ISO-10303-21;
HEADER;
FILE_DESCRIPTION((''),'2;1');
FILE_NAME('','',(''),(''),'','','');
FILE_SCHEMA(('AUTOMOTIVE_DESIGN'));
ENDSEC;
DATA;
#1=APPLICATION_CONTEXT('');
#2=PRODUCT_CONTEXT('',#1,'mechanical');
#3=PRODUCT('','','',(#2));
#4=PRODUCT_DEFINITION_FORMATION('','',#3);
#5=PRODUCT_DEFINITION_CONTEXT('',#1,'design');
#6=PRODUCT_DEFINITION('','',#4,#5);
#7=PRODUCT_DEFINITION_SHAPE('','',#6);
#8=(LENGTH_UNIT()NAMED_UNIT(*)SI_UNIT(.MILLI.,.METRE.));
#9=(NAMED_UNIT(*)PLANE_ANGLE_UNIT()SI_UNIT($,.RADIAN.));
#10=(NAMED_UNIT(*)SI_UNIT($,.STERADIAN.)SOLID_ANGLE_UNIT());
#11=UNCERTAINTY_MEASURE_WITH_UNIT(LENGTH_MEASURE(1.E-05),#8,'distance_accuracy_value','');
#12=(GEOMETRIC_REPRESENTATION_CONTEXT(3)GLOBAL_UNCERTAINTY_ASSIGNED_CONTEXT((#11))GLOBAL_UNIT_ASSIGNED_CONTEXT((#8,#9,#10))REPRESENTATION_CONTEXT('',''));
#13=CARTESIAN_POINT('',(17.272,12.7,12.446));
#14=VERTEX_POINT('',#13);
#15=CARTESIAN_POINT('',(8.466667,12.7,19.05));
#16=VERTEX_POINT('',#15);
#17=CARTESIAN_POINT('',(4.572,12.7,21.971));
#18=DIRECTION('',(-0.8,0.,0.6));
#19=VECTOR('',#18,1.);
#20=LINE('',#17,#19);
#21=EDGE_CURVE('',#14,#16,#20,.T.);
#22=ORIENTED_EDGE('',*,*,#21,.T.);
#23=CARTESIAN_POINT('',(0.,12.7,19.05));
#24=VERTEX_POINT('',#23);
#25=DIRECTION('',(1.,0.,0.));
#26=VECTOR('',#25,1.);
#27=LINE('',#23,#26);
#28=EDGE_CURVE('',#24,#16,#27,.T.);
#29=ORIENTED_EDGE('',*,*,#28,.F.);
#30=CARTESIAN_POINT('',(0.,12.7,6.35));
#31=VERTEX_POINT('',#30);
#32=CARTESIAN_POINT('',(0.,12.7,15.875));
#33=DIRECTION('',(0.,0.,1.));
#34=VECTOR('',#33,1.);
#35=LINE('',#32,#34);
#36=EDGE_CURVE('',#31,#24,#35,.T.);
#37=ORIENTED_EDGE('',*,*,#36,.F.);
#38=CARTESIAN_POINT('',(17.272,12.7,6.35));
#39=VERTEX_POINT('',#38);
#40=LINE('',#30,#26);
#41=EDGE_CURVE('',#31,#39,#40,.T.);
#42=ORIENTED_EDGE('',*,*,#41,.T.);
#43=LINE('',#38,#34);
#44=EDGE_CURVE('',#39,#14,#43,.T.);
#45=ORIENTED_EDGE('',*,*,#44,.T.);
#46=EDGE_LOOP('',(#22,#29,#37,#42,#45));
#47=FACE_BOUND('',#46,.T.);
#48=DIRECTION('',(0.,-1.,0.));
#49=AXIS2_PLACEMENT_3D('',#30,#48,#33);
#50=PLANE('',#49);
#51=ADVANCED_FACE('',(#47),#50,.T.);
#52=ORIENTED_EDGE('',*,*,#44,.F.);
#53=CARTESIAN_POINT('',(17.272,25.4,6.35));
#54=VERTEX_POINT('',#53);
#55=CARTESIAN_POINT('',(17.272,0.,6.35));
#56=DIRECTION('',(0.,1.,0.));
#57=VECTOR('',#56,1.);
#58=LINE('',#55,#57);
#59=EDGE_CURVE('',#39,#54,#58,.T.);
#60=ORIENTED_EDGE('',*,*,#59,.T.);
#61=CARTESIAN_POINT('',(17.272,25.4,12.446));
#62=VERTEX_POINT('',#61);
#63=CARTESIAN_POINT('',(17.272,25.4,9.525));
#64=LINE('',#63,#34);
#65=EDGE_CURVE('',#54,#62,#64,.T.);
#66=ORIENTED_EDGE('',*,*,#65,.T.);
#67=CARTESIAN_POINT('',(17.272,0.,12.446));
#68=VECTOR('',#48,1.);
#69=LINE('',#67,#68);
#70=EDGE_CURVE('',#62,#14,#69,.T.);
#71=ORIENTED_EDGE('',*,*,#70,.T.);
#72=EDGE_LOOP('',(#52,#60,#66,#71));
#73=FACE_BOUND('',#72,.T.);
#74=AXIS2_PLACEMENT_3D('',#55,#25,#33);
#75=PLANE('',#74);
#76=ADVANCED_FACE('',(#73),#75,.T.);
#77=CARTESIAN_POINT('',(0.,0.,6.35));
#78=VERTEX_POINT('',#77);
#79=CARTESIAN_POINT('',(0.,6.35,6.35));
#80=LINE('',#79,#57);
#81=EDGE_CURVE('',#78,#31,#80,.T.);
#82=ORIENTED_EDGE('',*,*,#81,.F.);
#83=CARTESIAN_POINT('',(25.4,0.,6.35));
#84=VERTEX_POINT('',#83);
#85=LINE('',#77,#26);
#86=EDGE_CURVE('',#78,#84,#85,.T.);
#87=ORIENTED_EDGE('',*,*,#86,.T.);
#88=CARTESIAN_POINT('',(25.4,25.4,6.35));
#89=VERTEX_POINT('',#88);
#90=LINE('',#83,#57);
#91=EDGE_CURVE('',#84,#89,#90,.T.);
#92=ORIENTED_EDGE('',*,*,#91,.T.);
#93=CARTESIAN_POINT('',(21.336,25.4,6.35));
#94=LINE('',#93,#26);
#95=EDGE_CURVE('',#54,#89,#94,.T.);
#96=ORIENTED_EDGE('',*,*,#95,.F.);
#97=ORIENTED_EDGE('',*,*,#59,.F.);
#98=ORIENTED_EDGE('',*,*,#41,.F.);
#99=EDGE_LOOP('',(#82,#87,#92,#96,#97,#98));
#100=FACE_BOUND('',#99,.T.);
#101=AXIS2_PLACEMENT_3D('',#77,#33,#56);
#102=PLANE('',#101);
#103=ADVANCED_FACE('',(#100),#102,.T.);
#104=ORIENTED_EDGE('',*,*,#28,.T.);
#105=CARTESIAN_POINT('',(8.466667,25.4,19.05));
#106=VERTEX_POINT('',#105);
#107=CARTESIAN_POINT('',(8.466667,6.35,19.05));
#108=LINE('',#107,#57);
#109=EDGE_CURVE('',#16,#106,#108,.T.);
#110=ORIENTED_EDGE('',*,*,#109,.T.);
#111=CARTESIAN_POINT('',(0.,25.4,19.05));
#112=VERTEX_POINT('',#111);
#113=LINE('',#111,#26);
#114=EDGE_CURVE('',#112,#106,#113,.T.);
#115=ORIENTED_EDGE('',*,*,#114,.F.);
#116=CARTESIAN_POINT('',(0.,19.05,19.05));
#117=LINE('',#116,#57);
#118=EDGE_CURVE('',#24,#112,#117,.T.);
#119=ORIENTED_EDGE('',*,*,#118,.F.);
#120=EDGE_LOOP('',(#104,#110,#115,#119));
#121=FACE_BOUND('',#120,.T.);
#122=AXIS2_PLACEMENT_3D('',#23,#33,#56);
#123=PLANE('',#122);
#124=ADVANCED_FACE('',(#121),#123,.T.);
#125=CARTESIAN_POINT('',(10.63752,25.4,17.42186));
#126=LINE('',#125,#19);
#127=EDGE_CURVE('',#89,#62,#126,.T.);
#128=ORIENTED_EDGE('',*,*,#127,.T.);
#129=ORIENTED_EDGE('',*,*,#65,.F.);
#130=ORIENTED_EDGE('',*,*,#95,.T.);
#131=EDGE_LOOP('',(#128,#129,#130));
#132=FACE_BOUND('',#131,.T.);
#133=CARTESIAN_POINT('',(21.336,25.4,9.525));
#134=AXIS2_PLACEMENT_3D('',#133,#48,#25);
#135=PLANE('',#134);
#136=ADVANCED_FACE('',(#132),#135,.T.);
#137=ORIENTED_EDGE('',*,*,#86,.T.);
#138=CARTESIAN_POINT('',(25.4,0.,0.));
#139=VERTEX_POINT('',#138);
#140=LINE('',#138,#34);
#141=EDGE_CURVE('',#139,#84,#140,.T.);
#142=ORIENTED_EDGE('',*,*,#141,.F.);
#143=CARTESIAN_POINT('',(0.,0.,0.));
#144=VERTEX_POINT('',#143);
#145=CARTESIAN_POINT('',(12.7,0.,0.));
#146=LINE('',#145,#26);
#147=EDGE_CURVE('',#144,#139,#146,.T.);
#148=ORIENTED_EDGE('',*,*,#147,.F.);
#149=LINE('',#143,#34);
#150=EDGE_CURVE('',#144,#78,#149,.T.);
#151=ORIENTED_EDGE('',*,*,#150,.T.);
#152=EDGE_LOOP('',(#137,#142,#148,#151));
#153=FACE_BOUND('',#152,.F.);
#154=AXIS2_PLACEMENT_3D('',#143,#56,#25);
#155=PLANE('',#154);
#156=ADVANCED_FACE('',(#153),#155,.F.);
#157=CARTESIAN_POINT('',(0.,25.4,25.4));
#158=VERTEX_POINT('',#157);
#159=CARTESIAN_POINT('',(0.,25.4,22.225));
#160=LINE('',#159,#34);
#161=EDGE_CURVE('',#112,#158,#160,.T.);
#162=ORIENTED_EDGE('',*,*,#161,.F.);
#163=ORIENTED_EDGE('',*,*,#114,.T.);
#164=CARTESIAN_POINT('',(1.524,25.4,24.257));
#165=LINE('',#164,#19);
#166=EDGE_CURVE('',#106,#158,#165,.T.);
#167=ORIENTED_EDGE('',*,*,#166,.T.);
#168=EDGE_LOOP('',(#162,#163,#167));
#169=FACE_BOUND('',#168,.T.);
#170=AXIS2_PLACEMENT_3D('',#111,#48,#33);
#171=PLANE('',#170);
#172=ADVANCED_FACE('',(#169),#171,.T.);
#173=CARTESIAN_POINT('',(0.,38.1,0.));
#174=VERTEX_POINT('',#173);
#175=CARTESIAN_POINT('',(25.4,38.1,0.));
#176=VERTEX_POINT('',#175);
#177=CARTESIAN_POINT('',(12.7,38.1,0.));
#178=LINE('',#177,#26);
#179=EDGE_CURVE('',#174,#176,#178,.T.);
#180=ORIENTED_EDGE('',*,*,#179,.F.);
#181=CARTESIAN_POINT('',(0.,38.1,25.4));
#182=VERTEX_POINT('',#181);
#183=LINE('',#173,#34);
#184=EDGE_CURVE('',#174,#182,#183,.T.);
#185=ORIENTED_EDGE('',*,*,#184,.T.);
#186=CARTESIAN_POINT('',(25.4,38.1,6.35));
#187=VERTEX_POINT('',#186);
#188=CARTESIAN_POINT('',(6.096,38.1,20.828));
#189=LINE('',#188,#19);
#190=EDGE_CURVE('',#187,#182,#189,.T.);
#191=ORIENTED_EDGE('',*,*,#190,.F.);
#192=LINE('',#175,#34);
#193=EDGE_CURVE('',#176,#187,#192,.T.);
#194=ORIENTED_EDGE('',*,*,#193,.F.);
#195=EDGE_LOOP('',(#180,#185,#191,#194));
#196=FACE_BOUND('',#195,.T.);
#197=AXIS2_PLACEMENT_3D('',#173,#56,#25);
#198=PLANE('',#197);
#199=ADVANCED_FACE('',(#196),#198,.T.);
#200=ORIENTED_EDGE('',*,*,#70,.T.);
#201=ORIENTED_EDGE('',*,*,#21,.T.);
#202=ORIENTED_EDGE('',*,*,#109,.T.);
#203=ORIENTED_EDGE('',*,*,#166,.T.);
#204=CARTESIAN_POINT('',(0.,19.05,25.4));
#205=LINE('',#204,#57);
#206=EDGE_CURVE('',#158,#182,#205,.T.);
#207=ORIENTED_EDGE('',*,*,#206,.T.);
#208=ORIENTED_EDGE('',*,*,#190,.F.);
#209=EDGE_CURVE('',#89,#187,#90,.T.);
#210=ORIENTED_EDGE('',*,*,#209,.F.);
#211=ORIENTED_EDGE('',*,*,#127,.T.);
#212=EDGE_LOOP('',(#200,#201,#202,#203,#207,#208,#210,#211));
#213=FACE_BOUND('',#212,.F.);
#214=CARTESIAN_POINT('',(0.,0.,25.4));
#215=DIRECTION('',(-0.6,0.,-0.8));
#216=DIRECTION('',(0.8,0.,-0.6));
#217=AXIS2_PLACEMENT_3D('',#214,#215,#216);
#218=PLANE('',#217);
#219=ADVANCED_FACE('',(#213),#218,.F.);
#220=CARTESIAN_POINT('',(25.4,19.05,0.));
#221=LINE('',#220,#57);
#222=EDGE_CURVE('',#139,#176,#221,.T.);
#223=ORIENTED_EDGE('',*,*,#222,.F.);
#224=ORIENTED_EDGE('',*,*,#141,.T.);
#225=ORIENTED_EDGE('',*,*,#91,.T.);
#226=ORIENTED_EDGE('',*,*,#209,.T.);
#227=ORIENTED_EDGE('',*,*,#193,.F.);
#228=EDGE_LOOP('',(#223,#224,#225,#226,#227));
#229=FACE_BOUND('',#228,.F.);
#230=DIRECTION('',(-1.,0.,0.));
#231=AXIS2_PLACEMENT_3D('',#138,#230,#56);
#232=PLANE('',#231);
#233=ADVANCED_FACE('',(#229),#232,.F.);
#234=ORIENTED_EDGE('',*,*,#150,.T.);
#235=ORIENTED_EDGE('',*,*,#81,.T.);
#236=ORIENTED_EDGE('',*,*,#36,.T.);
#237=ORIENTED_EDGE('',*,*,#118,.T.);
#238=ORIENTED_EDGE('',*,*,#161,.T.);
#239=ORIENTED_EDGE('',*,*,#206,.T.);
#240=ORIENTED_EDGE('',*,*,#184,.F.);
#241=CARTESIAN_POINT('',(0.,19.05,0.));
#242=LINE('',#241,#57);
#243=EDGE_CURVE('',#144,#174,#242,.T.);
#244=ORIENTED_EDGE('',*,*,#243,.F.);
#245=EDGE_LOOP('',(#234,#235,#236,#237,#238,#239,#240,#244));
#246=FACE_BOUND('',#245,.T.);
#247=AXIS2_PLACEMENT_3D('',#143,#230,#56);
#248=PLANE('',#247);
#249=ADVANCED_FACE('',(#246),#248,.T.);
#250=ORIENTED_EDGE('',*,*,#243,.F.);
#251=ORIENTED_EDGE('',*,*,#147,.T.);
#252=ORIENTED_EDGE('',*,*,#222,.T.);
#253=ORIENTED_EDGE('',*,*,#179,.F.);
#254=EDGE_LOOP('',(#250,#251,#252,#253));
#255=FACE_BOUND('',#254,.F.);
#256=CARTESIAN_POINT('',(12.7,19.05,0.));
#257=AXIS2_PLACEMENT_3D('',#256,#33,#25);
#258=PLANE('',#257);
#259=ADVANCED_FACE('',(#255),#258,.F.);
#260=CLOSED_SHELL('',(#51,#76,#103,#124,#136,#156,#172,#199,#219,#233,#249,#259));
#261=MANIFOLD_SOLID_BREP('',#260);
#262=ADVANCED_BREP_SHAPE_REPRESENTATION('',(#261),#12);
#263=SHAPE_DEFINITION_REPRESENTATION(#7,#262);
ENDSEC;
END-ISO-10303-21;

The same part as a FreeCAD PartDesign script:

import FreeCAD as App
import Part
import Sketcher

V = App.Vector
Q = App.Units.Quantity

doc = App.newDocument("Part")
body = doc.addObject("PartDesign::Body", "Body")

sketch1 = body.newObject("Sketcher::SketchObject", "Sketch")
sketch1.AttachmentSupport = (doc.getObject("XY_Plane"), [""])
sketch1.MapMode = "FlatFace"
sketch1.addGeometry(Part.LineSegment(V(0, 38.1, 0), V(0, 0, 0)), False)
sketch1.addGeometry(Part.LineSegment(V(0, 0, 0), V(25.4, 0, 0)), False)
sketch1.addGeometry(Part.LineSegment(V(25.4, 0, 0), V(25.4, 38.1, 0)), False)
sketch1.addGeometry(Part.LineSegment(V(25.4, 38.1, 0), V(0, 38.1, 0)), False)
sketch1.addConstraint(Sketcher.Constraint("Coincident", 0, 2, 1, 1))
sketch1.addConstraint(Sketcher.Constraint("Coincident", 1, 2, 2, 1))
sketch1.addConstraint(Sketcher.Constraint("Coincident", 2, 2, 3, 1))
sketch1.addConstraint(Sketcher.Constraint("Coincident", 3, 2, 0, 1))
sketch1.addConstraint(Sketcher.Constraint("Vertical", 0))
sketch1.addConstraint(Sketcher.Constraint("Horizontal", 1))
sketch1.addConstraint(Sketcher.Constraint("Vertical", 2))
sketch1.addConstraint(Sketcher.Constraint("Horizontal", 3))
sketch1.addConstraint(Sketcher.Constraint("Coincident", 0, 2, -1, 1))
sketch1.addConstraint(Sketcher.Constraint("DistanceX", 1, 1, 1, 2, Q("1 in")))
sketch1.addConstraint(Sketcher.Constraint("DistanceY", 0, 2, 0, 1, Q("1.5 in")))
pad1 = body.newObject("PartDesign::Pad", "Pad")
pad1.Profile = sketch1
pad1.Length = Q("1 in")

sketch2 = body.newObject("Sketcher::SketchObject", "Sketch001")
sketch2.AttachmentSupport = (doc.getObject("XZ_Plane"), [""])
sketch2.MapMode = "FlatFace"
sketch2.addGeometry(Part.LineSegment(V(25.4, 25.4, 0), V(0, 25.4, 0)), False)
sketch2.addGeometry(Part.LineSegment(V(0, 25.4, 0), V(25.4, 6.35, 0)), False)
sketch2.addGeometry(Part.LineSegment(V(25.4, 6.35, 0), V(25.4, 25.4, 0)), False)
sketch2.addConstraint(Sketcher.Constraint("Coincident", 0, 2, 1, 1))
sketch2.addConstraint(Sketcher.Constraint("Coincident", 1, 2, 2, 1))
sketch2.addConstraint(Sketcher.Constraint("Coincident", 2, 2, 0, 1))
sketch2.addConstraint(Sketcher.Constraint("Horizontal", 0))
sketch2.addConstraint(Sketcher.Constraint("Vertical", 2))
sketch2.addConstraint(Sketcher.Constraint("PointOnObject", 0, 2, -2))
sketch2.addConstraint(Sketcher.Constraint("DistanceX", 0, 2, 0, 1, Q("1 in")))
sketch2.addConstraint(Sketcher.Constraint("DistanceY", -1, 1, 0, 2, Q("1 in")))
sketch2.addConstraint(Sketcher.Constraint("DistanceY", 2, 1, 2, 2, Q("0.75 in")))
pocket1 = body.newObject("PartDesign::Pocket", "Pocket")
pocket1.Profile = sketch2
pocket1.Length = Q("2 in")

sketch3 = body.newObject("Sketcher::SketchObject", "Sketch002")
sketch3.AttachmentSupport = (doc.getObject("YZ_Plane"), [""])
sketch3.MapMode = "FlatFace"
sketch3.addGeometry(Part.LineSegment(V(0, 25.4, 0), V(0, 6.35, 0)), False)
sketch3.addGeometry(Part.LineSegment(V(0, 6.35, 0), V(12.7, 6.35, 0)), False)
sketch3.addGeometry(Part.LineSegment(V(12.7, 6.35, 0), V(12.7, 25.4, 0)), False)
sketch3.addGeometry(Part.LineSegment(V(12.7, 25.4, 0), V(0, 25.4, 0)), False)
sketch3.addConstraint(Sketcher.Constraint("Coincident", 0, 2, 1, 1))
sketch3.addConstraint(Sketcher.Constraint("Coincident", 1, 2, 2, 1))
sketch3.addConstraint(Sketcher.Constraint("Coincident", 2, 2, 3, 1))
sketch3.addConstraint(Sketcher.Constraint("Coincident", 3, 2, 0, 1))
sketch3.addConstraint(Sketcher.Constraint("Vertical", 0))
sketch3.addConstraint(Sketcher.Constraint("Horizontal", 1))
sketch3.addConstraint(Sketcher.Constraint("Vertical", 2))
sketch3.addConstraint(Sketcher.Constraint("Horizontal", 3))
sketch3.addConstraint(Sketcher.Constraint("PointOnObject", 0, 2, -2))
sketch3.addConstraint(Sketcher.Constraint("DistanceX", 1, 1, 1, 2, Q("0.5 in")))
sketch3.addConstraint(Sketcher.Constraint("DistanceY", -1, 1, 2, 2, Q("1 in")))
sketch3.addConstraint(Sketcher.Constraint("DistanceY", 0, 2, 0, 1, Q("0.75 in")))
pocket2 = body.newObject("PartDesign::Pocket", "Pocket001")
pocket2.Profile = sketch3
pocket2.Length = Q("2 in")
pocket2.Reversed = True

sketch4 = body.newObject("Sketcher::SketchObject", "Sketch003")
sketch4.AttachmentSupport = (doc.getObject("YZ_Plane"), [""])
sketch4.MapMode = "FlatFace"
sketch4.addGeometry(Part.LineSegment(V(12.7, 25.4, 0), V(12.7, 19.05, 0)), False)
sketch4.addGeometry(Part.LineSegment(V(12.7, 19.05, 0), V(25.4, 19.05, 0)), False)
sketch4.addGeometry(Part.LineSegment(V(25.4, 19.05, 0), V(25.4, 25.4, 0)), False)
sketch4.addGeometry(Part.LineSegment(V(25.4, 25.4, 0), V(12.7, 25.4, 0)), False)
sketch4.addConstraint(Sketcher.Constraint("Coincident", 0, 2, 1, 1))
sketch4.addConstraint(Sketcher.Constraint("Coincident", 1, 2, 2, 1))
sketch4.addConstraint(Sketcher.Constraint("Coincident", 2, 2, 3, 1))
sketch4.addConstraint(Sketcher.Constraint("Coincident", 3, 2, 0, 1))
sketch4.addConstraint(Sketcher.Constraint("Vertical", 0))
sketch4.addConstraint(Sketcher.Constraint("Horizontal", 1))
sketch4.addConstraint(Sketcher.Constraint("Vertical", 2))
sketch4.addConstraint(Sketcher.Constraint("Horizontal", 3))
sketch4.addConstraint(Sketcher.Constraint("DistanceX", 1, 1, 1, 2, Q("0.5 in")))
sketch4.addConstraint(Sketcher.Constraint("DistanceX", -1, 1, 1, 2, Q("1 in")))
sketch4.addConstraint(Sketcher.Constraint("DistanceY", -1, 1, 2, 2, Q("1 in")))
sketch4.addConstraint(Sketcher.Constraint("DistanceY", 0, 2, 0, 1, Q("0.25 in")))
pocket3 = body.newObject("PartDesign::Pocket", "Pocket002")
pocket3.Profile = sketch4
pocket3.Length = Q("1 in")
pocket3.Reversed = True

sketch5 = body.newObject("Sketcher::SketchObject", "Sketch004")
sketch5.AttachmentSupport = (doc.getObject("XZ_Plane"), [""])
sketch5.MapMode = "FlatFace"
sketch5.addGeometry(Part.LineSegment(V(17.272, 12.7, 0), V(17.272, 6.35, 0)), False)
sketch5.addGeometry(Part.LineSegment(V(17.272, 6.35, 0), V(25.4, 6.35, 0)), False)
sketch5.addGeometry(Part.LineSegment(V(25.4, 6.35, 0), V(25.4, 12.7, 0)), False)
sketch5.addGeometry(Part.LineSegment(V(25.4, 12.7, 0), V(17.272, 12.7, 0)), False)
sketch5.addConstraint(Sketcher.Constraint("Coincident", 0, 2, 1, 1))
sketch5.addConstraint(Sketcher.Constraint("Coincident", 1, 2, 2, 1))
sketch5.addConstraint(Sketcher.Constraint("Coincident", 2, 2, 3, 1))
sketch5.addConstraint(Sketcher.Constraint("Coincident", 3, 2, 0, 1))
sketch5.addConstraint(Sketcher.Constraint("Vertical", 0))
sketch5.addConstraint(Sketcher.Constraint("Horizontal", 1))
sketch5.addConstraint(Sketcher.Constraint("Vertical", 2))
sketch5.addConstraint(Sketcher.Constraint("Horizontal", 3))
sketch5.addConstraint(Sketcher.Constraint("DistanceX", -1, 1, 1, 2, Q("1 in")))
sketch5.addConstraint(Sketcher.Constraint("DistanceX", 1, 1, 1, 2, Q("0.32 in")))
sketch5.addConstraint(Sketcher.Constraint("DistanceY", 0, 2, 0, 1, Q("0.25 in")))
sketch5.addConstraint(Sketcher.Constraint("DistanceY", -1, 1, 2, 2, Q("0.5 in")))
pocket4 = body.newObject("PartDesign::Pocket", "Pocket003")
pocket4.Profile = sketch5
pocket4.Length = Q("1 in")

doc.recompute()
